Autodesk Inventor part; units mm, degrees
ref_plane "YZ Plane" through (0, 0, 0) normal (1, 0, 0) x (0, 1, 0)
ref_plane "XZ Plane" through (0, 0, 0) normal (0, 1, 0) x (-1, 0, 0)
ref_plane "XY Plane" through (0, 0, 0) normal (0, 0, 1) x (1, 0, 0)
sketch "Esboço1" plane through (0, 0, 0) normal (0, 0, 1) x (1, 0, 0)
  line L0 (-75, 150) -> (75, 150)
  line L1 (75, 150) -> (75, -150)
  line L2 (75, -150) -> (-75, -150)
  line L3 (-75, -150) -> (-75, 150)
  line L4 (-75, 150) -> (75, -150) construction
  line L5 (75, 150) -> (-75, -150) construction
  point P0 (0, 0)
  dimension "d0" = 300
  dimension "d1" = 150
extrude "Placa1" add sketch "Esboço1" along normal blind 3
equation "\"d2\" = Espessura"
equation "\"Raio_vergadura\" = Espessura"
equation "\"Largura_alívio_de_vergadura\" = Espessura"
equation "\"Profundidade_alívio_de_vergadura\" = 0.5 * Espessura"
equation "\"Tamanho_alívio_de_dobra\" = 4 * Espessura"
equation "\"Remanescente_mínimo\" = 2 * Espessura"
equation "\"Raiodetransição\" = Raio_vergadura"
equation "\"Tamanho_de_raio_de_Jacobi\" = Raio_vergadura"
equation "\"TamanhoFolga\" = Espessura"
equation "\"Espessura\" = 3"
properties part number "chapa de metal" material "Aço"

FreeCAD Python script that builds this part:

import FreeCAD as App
import Part
import Sketcher
from FreeCAD import Vector
Q = App.Units.Quantity

doc = App.newDocument("Part")
body = doc.addObject("PartDesign::Body", "Body")

# Sketch on XY plane
sketch1 = doc.addObject("Sketcher::SketchObject", "Sketch")
body.addObject(sketch1)
sketch1.AttachmentSupport = (doc.XY_Plane, [""])
sketch1.MapMode = "FlatFace"
sketch1.addGeometry(Part.LineSegment(Vector(75, 150, 0), Vector(-75, 150, 0)), False)
sketch1.addGeometry(Part.LineSegment(Vector(-75, 150, 0), Vector(-75, -150, 0)), False)
sketch1.addGeometry(Part.LineSegment(Vector(-75, -150, 0), Vector(75, -150, 0)), False)
sketch1.addGeometry(Part.LineSegment(Vector(75, -150, 0), Vector(75, 150, 0)), False)
sketch1.addConstraint(Sketcher.Constraint("Coincident", 0, 2, 1, 1))
sketch1.addConstraint(Sketcher.Constraint("Coincident", 1, 2, 2, 1))
sketch1.addConstraint(Sketcher.Constraint("Coincident", 2, 2, 3, 1))
sketch1.addConstraint(Sketcher.Constraint("Coincident", 3, 2, 0, 1))
sketch1.addConstraint(Sketcher.Constraint("Horizontal", 0))
sketch1.addConstraint(Sketcher.Constraint("Vertical", 1))
sketch1.addConstraint(Sketcher.Constraint("Horizontal", 2))
sketch1.addConstraint(Sketcher.Constraint("Vertical", 3))
sketch1.addConstraint(Sketcher.Constraint("Symmetric", 0, 2, 2, 2, -1, 1))
sketch1.addConstraint(Sketcher.Constraint("DistanceX", 0, 2, 0, 1, Q("150 mm")))
sketch1.addConstraint(Sketcher.Constraint("DistanceY", 1, 2, 1, 1, Q("300 mm")))
pad1 = doc.addObject("PartDesign::Pad", "Pad")
body.addObject(pad1)
pad1.Profile = sketch1
pad1.Length = 3

doc.recompute()
